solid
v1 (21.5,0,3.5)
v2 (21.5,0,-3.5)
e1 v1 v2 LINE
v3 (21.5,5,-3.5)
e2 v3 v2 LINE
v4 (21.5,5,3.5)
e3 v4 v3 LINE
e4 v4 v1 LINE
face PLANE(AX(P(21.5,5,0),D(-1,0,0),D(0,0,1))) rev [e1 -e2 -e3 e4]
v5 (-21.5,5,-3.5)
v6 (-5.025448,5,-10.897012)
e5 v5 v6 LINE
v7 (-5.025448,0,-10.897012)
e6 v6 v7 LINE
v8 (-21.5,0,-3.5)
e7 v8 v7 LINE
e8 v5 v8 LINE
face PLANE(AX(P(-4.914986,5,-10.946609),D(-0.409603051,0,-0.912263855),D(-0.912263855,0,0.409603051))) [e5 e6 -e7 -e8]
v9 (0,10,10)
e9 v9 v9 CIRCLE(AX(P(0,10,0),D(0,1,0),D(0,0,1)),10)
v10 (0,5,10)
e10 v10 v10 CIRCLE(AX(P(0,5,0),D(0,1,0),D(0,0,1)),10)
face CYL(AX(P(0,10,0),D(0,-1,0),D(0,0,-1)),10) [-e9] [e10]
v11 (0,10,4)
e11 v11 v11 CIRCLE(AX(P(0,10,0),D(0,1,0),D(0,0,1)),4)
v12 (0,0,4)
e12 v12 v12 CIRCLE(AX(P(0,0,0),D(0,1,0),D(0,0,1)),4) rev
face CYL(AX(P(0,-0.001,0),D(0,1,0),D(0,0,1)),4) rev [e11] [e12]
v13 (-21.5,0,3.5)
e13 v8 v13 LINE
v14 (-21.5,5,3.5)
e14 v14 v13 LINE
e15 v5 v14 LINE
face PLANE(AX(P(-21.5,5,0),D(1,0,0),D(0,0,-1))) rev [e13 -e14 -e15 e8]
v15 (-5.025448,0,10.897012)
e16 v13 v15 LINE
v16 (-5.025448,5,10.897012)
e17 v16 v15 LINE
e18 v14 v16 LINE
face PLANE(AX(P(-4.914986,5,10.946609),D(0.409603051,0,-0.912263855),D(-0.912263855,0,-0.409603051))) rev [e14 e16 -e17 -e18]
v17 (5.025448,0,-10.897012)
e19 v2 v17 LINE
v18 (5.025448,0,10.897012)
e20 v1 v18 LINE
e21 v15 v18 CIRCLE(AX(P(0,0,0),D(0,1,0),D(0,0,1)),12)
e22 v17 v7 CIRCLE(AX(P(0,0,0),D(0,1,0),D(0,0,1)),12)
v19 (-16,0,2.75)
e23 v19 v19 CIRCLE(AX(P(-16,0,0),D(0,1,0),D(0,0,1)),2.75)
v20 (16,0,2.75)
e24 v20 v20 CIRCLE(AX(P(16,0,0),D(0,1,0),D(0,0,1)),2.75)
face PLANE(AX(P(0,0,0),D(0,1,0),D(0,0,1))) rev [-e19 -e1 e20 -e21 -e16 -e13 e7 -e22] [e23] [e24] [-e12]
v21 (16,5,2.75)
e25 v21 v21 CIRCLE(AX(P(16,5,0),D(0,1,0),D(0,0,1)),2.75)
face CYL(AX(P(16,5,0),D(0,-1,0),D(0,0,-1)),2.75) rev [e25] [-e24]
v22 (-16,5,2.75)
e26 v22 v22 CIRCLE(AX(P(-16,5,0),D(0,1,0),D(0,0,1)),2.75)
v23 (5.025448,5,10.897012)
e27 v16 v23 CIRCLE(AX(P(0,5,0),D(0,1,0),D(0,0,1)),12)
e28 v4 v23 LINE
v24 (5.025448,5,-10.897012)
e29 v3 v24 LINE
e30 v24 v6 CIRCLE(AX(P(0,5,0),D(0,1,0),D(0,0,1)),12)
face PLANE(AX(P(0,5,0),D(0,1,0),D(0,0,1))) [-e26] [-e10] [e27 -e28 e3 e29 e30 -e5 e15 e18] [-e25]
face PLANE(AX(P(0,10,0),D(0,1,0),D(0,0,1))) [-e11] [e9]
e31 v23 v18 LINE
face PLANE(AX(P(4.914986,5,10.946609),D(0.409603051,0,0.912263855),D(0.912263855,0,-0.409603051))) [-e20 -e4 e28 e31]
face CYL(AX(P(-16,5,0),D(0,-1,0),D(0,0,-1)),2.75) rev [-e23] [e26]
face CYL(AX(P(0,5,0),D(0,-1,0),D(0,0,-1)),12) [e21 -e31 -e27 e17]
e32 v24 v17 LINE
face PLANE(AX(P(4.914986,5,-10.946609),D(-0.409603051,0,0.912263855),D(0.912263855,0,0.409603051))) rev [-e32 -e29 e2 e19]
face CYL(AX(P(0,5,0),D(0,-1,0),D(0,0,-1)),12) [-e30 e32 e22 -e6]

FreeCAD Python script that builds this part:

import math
import FreeCAD as App
import Part
import Sketcher

V = App.Vector

doc = App.newDocument("Part")
params = doc.addObject("Spreadsheet::Sheet", "Params")
for row, (alias, value) in enumerate([
    ("sketch1_radius", "12 mm"),
    ("sketch1_diameter", "5.5 mm"),
    ("sketch1_height", "7 mm"),
    ("pad1_length", "5 mm"),
    ("sketch2_diameter", "20 mm"),
    ("pad2_length", "5 mm"),
    ("sketch3_diameter", "8 mm"),
], start=1):
    params.set(f"A{row}", alias)
    params.set(f"B{row}", "=" + value)
    params.setAlias(f"B{row}", alias)

body = doc.addObject("PartDesign::Body", "Body")

sketch1 = doc.addObject("Sketcher::SketchObject", "Sketch")
body.addObject(sketch1)
sketch1.AttachmentSupport = (doc.XZ_Plane, [""])
sketch1.MapMode = "FlatFace"
sketch1.addGeometry(Part.LineSegment(V(21.5, -3.5, 0), V(5, -10.9, 0)), False)
sketch1.addGeometry(Part.ArcOfCircle(Part.Circle(V(0, 0, 0), V(0, 0, 1), 12), math.radians(-115), math.radians(-65)), False)
sketch1.addGeometry(Part.LineSegment(V(-5, -10.9, 0), V(-21.5, -3.5, 0)), False)
sketch1.addGeometry(Part.LineSegment(V(-21.5, -3.5, 0), V(-21.5, 3.5, 0)), False)
sketch1.addGeometry(Part.LineSegment(V(-21.5, 3.5, 0), V(-5, 10.9, 0)), False)
sketch1.addGeometry(Part.ArcOfCircle(Part.Circle(V(0, 0, 0), V(0, 0, 1), 12), math.radians(65), math.radians(115)), False)
sketch1.addGeometry(Part.LineSegment(V(5, 10.9, 0), V(21.5, 3.5, 0)), False)
sketch1.addGeometry(Part.LineSegment(V(21.5, 3.5, 0), V(21.5, -3.5, 0)), False)
sketch1.addGeometry(Part.Circle(V(16, 0, 0), V(0, 0, 1), 2.8), False)
sketch1.addGeometry(Part.Circle(V(-16, 0, 0), V(0, 0, 1), 2.8), False)
sketch1.addConstraint(Sketcher.Constraint("Coincident", 0, 2, 1, 2))
sketch1.addConstraint(Sketcher.Constraint("Coincident", 1, 1, 2, 1))
sketch1.addConstraint(Sketcher.Constraint("Coincident", 2, 2, 3, 1))
sketch1.addConstraint(Sketcher.Constraint("Coincident", 3, 2, 4, 1))
sketch1.addConstraint(Sketcher.Constraint("Coincident", 4, 2, 5, 2))
sketch1.addConstraint(Sketcher.Constraint("Coincident", 5, 1, 6, 1))
sketch1.addConstraint(Sketcher.Constraint("Coincident", 6, 2, 7, 1))
sketch1.addConstraint(Sketcher.Constraint("Coincident", 7, 2, 0, 1))
sketch1.addConstraint(Sketcher.Constraint("Vertical", 3))
sketch1.addConstraint(Sketcher.Constraint("Vertical", 7))
sketch1.addConstraint(Sketcher.Constraint("Coincident", 1, 3, -1, 1))
sketch1.addConstraint(Sketcher.Constraint("Coincident", 5, 3, -1, 1))
sketch1.addConstraint(Sketcher.Constraint("Equal", 1, 5))
sketch1.addConstraint(Sketcher.Constraint("Equal", 8, 9))
sketch1.addConstraint(Sketcher.Constraint("Symmetric", 8, 3, 9, 3, -1, 1))
sketch1.addConstraint(Sketcher.Constraint("Symmetric", 2, 2, 6, 2, -1, 1))
sketch1.addConstraint(Sketcher.Constraint("PointOnObject", 8, 3, -1))
sketch1.addConstraint(Sketcher.Constraint("Parallel", 0, 4))
sketch1.addConstraint(Sketcher.Constraint("Parallel", 2, 6))
sketch1.addConstraint(Sketcher.Constraint("Horizontal", 0, 2, 1, 1))
sketch1.addConstraint(Sketcher.Constraint("Horizontal", 4, 2, 5, 1))
sketch1.addConstraint(Sketcher.Constraint("Horizontal", 3, 2, 6, 2))
sketch1.addConstraint(Sketcher.Constraint("Radius", 1, 12.0))
sketch1.addConstraint(Sketcher.Constraint("Diameter", 8, 5.5))
sketch1.addConstraint(Sketcher.Constraint("DistanceY", 3, 1, 3, 2, 7.0))
sketch1.addConstraint(Sketcher.Constraint("DistanceX", -1, 1, 8, 3, 16.0))
sketch1.addConstraint(Sketcher.Constraint("DistanceX", 2, 2, -1, 1, 21.5))
sketch1.addConstraint(Sketcher.Constraint("DistanceX", -1, 1, 0, 2, 5.025448))
sketch1.setExpression("Constraints[22]", "Params.sketch1_radius")
sketch1.setExpression("Constraints[23]", "Params.sketch1_diameter")
sketch1.setExpression("Constraints[24]", "Params.sketch1_height")
pad1 = doc.addObject("PartDesign::Pad", "Pad")
body.addObject(pad1)
pad1.Profile = sketch1
pad1.setExpression("Length", "Params.pad1_length")
pad1.Reversed = True

sketch2 = doc.addObject("Sketcher::SketchObject", "Sketch001")
body.addObject(sketch2)
sketch2.AttachmentSupport = (doc.XZ_Plane, [""])
sketch2.MapMode = "FlatFace"
sketch2.AttachmentOffset = App.Placement(V(0, 0, -5), App.Rotation())
sketch2.addGeometry(Part.Circle(V(0, 0, 0), V(0, 0, 1), 10), False)
sketch2.addConstraint(Sketcher.Constraint("Coincident", 0, 3, -1, 1))
sketch2.addConstraint(Sketcher.Constraint("Diameter", 0, 20.0))
sketch2.setExpression("Constraints[1]", "Params.sketch2_diameter")
pad2 = doc.addObject("PartDesign::Pad", "Pad001")
body.addObject(pad2)
pad2.Profile = sketch2
pad2.setExpression("Length", "Params.pad2_length")
pad2.Reversed = True

sketch3 = doc.addObject("Sketcher::SketchObject", "Sketch002")
body.addObject(sketch3)
sketch3.AttachmentSupport = (doc.XZ_Plane, [""])
sketch3.MapMode = "FlatFace"
sketch3.AttachmentOffset = App.Placement(V(0, 0, -10), App.Rotation())
sketch3.addGeometry(Part.Circle(V(0, 0, 0), V(0, 0, 1), 4), False)
sketch3.addConstraint(Sketcher.Constraint("Coincident", 0, 3, -1, 1))
sketch3.addConstraint(Sketcher.Constraint("Diameter", 0, 8.0))
sketch3.setExpression("Constraints[1]", "Params.sketch3_diameter")
pocket1 = doc.addObject("PartDesign::Pocket", "Pocket")
body.addObject(pocket1)
pocket1.Profile = sketch3
pocket1.Type = "UpToFirst"
pocket1.Reversed = True

doc.recompute()
